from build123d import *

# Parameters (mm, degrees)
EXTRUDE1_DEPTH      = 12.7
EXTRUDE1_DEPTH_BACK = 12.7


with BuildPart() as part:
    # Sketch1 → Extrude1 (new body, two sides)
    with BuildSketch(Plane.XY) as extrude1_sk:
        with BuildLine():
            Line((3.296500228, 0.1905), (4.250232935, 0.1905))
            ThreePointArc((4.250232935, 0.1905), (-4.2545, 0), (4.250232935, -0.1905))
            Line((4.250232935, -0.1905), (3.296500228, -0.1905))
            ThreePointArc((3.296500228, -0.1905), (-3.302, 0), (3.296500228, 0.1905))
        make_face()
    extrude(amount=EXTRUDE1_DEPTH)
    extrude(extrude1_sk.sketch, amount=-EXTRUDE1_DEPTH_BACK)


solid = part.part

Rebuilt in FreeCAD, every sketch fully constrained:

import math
import FreeCAD as App
import Part
import Sketcher
Q = App.Units.Quantity

doc = App.newDocument("Part")
params = doc.addObject("Spreadsheet::Sheet", "Params")
for row, (alias, value) in enumerate([
    ("sketch1_radius", "0.13 in"),
    ("pad1_length", "0.5 in"),
    ("pad1_length2", "0.5 in"),
], start=1):
    params.set(f"A{row}", alias)
    params.set(f"B{row}", "=" + value)
    params.setAlias(f"B{row}", alias)

body = doc.addObject("PartDesign::Body", "Body")

# Sketch on XY plane
sketch1 = body.newObject("Sketcher::SketchObject", "Sketch")
sketch1.AttachmentSupport = (doc.getObject("XY_Plane"), [""])
sketch1.MapMode = "FlatFace"
sketch1.addGeometry([
    Part.LineSegment(App.Vector(3.2965, 0.1905, 0), App.Vector(4.250233, 0.1905, 0)),
    Part.ArcOfCircle(Part.Circle(App.Vector(0, 0, 0), App.Vector(0, 0, 1), 4.2545), math.radians(2.566341), math.radians(357.433659)),
    Part.LineSegment(App.Vector(4.250233, -0.1905, 0), App.Vector(3.2965, -0.1905, 0)),
    Part.ArcOfCircle(Part.Circle(App.Vector(0, 0, 0), App.Vector(0, 0, 1), 3.302), math.radians(3.307362), math.radians(356.692638)),
], False)
sketch1.addConstraint([
    Sketcher.Constraint("Coincident", 0, 2, 1, 1),
    Sketcher.Constraint("Coincident", 1, 2, 2, 1),
    Sketcher.Constraint("Coincident", 2, 2, 3, 2),
    Sketcher.Constraint("Coincident", 3, 1, 0, 1),
    Sketcher.Constraint("Horizontal", 0),
    Sketcher.Constraint("Horizontal", 2),
    Sketcher.Constraint("Coincident", 1, 3, -1, 1),
    Sketcher.Constraint("Coincident", 3, 3, -1, 1),
    Sketcher.Constraint("Vertical", 0, 2, 1, 2),
    Sketcher.Constraint("Radius", 3, Q("0.13 in")),
    Sketcher.Constraint("Radius", 1, Q("0.1675 in")),
    Sketcher.Constraint("DistanceY", 1, 2, 0, 2, Q("0.015 in")),
])
sketch1.setExpression("Constraints[9]", "Params.sketch1_radius")
pad1 = body.newObject("PartDesign::Pad", "Pad")
pad1.Profile = sketch1
pad1.Type = "TwoLengths"
pad1.setExpression("Length", "Params.pad1_length")
pad1.setExpression("Length2", "Params.pad1_length2")

doc.recompute()
